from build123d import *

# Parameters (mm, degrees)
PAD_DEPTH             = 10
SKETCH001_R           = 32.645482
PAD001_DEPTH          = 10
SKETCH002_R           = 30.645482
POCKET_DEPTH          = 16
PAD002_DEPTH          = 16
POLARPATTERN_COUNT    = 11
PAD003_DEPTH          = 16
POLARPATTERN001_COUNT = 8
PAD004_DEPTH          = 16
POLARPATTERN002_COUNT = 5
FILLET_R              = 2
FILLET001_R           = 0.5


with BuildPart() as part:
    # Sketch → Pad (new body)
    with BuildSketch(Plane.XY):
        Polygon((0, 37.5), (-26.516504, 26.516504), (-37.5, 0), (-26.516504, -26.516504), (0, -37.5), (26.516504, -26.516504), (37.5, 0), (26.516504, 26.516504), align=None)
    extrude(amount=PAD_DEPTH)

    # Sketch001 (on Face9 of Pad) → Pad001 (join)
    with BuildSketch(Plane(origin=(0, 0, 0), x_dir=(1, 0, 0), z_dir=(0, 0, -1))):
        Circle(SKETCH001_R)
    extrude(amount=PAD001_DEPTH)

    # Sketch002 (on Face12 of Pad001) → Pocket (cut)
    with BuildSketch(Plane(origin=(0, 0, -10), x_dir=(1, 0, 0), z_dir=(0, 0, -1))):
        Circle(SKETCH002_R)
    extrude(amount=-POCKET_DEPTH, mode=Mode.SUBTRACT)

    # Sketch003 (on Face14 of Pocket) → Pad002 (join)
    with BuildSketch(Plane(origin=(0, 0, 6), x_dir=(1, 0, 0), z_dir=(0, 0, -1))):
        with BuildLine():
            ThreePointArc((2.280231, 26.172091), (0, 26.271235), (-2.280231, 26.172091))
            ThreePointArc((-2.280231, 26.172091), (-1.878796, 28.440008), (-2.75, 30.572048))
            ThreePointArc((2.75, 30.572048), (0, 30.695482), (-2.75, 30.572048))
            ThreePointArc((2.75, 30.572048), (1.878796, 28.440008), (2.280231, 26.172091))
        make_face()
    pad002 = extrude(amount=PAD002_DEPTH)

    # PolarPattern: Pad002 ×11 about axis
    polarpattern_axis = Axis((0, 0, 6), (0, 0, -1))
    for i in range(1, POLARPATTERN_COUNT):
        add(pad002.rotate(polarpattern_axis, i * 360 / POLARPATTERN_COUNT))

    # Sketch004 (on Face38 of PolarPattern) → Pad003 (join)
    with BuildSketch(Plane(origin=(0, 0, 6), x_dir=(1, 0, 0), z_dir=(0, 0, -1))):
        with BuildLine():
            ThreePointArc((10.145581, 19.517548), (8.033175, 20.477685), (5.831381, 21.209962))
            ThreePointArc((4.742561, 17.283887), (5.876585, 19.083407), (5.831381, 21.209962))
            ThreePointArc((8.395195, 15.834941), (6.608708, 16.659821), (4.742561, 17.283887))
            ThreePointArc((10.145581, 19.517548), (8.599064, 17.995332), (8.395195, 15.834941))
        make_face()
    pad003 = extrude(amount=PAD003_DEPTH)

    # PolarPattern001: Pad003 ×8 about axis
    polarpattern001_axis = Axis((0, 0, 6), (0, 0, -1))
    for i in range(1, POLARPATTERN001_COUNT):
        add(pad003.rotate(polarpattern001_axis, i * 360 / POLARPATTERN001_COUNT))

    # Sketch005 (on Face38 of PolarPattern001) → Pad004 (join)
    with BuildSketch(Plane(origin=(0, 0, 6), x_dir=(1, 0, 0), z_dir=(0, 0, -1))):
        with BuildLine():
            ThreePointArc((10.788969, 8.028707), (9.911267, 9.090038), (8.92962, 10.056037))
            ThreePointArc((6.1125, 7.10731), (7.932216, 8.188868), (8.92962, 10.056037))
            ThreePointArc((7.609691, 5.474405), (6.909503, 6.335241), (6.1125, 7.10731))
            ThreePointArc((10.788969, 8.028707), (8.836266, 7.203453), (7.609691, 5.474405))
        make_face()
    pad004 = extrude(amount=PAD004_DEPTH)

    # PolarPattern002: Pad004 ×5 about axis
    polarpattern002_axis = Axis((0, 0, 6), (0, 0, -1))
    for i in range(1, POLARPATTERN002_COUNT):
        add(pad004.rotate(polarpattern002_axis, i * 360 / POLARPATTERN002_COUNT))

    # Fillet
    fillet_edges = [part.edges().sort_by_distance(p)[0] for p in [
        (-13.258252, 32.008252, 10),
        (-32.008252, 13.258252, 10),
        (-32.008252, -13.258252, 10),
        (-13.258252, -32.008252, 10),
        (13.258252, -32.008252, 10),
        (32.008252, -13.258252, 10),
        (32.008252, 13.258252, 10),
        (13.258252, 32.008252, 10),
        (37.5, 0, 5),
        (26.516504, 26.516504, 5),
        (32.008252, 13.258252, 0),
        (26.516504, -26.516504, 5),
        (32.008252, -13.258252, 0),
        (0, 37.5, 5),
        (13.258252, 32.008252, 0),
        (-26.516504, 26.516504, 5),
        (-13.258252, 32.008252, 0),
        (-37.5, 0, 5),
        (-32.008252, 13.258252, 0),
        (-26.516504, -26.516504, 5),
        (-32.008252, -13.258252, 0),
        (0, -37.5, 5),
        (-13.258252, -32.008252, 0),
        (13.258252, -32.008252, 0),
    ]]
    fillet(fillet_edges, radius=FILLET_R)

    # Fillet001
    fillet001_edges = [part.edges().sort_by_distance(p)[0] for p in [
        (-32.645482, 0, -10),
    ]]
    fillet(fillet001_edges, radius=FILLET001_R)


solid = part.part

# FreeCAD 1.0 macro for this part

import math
import FreeCAD as App
import Part
import Sketcher
Q = App.Units.Quantity


def edges_at(feature, points):
    """Names of the edges that pass closest to the given points."""
    edges = feature.Shape.Edges
    near = lambda p: min(range(len(edges)), key=lambda i: edges[i].distToShape(Part.Vertex(*p))[0])
    return sorted({f"Edge{near(p) + 1}" for p in points})


def add_polygon(sketch, points):
    """Adds a closed chain of lines whose ends are joined by coincident constraints."""
    first, n = sketch.GeometryCount, len(points)
    for a, b in zip(points, points[1:] + points[:1]):
        sketch.addGeometry(Part.LineSegment(App.Vector(*a, 0), App.Vector(*b, 0)), False)
    for i in range(n):
        sketch.addConstraint(Sketcher.Constraint("Coincident", first + i, 2, first + (i + 1) % n, 1))

doc = App.newDocument("Part")
params = doc.addObject("Spreadsheet::Sheet", "Params")
for row, (alias, value) in enumerate([
    ("pad1_length", "10 mm"),
    ("pad2_length", "10 mm"),
    ("pocket1_length", "16 mm"),
    ("pad3_length", "16 mm"),
    ("sketch5_height", "21.209998 mm"),
    ("pad4_length", "16 mm"),
    ("pad5_length", "16 mm"),
    ("fillet_radius", "2 mm"),
    ("fillet2_radius", "0.5 mm"),
], start=1):
    params.set(f"A{row}", alias)
    params.set(f"B{row}", "=" + value)
    params.setAlias(f"B{row}", alias)

body = doc.addObject("PartDesign::Body", "Body")

sketch1 = body.newObject("Sketcher::SketchObject", "Sketch")
sketch1.AttachmentSupport = (doc.getObject("XY_Plane"), [""])
sketch1.MapMode = "FlatFace"
add_polygon(sketch1, [(0, 38), (-27, 27), (-38, 0), (-27, -27), (0, -38), (27, -27), (38, 0), (27, 27)])
sketch1.addConstraint([
    Sketcher.Constraint("Symmetric", 0, 2, 4, 2, -1, 1),
    Sketcher.Constraint("Symmetric", 1, 2, 5, 2, -1, 1),
    Sketcher.Constraint("Symmetric", 2, 2, 6, 2, -1, 1),
    Sketcher.Constraint("Symmetric", 3, 2, 7, 2, -1, 1),
    Sketcher.Constraint("Symmetric", 2, 2, 4, 2, -2),
    Sketcher.Constraint("PointOnObject", 1, 2, -1),
    Sketcher.Constraint("PointOnObject", 3, 2, -2),
    Sketcher.Constraint("Perpendicular", 0, 2),
    Sketcher.Constraint("Equal", 0, 1),
    Sketcher.Constraint("Angle", 0, Q("-157.499999 deg")),
    Sketcher.Constraint("DistanceX", 1, 2, 5, 2, 75.0),
])
pad1 = body.newObject("PartDesign::Pad", "Pad")
pad1.Profile = sketch1
pad1.setExpression("Length", "Params.pad1_length")

sketch2 = body.newObject("Sketcher::SketchObject", "Sketch001")
sketch2.AttachmentSupport = (doc.getObject("XY_Plane"), [""])
sketch2.MapMode = "FlatFace"
sketch2.addGeometry(Part.Circle(App.Vector(0, 0, 0), App.Vector(0, 0, 1), 33), False)
sketch2.addConstraint([
    Sketcher.Constraint("Coincident", 0, 3, -1, 1),
    Sketcher.Constraint("Diameter", 0, 65.290964),
])
pad2 = body.newObject("PartDesign::Pad", "Pad001")
pad2.Profile = sketch2
pad2.setExpression("Length", "Params.pad2_length")
pad2.Reversed = True

sketch3 = body.newObject("Sketcher::SketchObject", "Sketch002")
sketch3.AttachmentSupport = (doc.getObject("XY_Plane"), [""])
sketch3.MapMode = "FlatFace"
sketch3.AttachmentOffset = App.Placement(App.Vector(0, 0, -10), App.Rotation())
sketch3.addGeometry(Part.Circle(App.Vector(0, 0, 0), App.Vector(0, 0, 1), 31), False)
sketch3.addConstraint([
    Sketcher.Constraint("Coincident", 0, 3, -1, 1),
    Sketcher.Constraint("Diameter", 0, 61.290964),
])
pocket1 = body.newObject("PartDesign::Pocket", "Pocket")
pocket1.Profile = sketch3
pocket1.setExpression("Length", "Params.pocket1_length")
pocket1.Reversed = True

sketch4 = body.newObject("Sketcher::SketchObject", "Sketch003")
sketch4.AttachmentSupport = (doc.getObject("XY_Plane"), [""])
sketch4.MapMode = "FlatFace"
sketch4.AttachmentOffset = App.Placement(App.Vector(0, 0, 6), App.Rotation())
sketch4.addGeometry([
    Part.ArcOfCircle(Part.Circle(App.Vector(0, 0, 0), App.Vector(0, 0, 1), 26.3), math.radians(-94.98), math.radians(-85.02)),
    Part.ArcOfCircle(Part.Circle(App.Vector(6, -28, 0), App.Vector(0, 0, 1), 4.1), math.radians(154), math.radians(218)),
    Part.ArcOfCircle(Part.Circle(App.Vector(0, 0, 0), App.Vector(0, 0, 1), 30.7), math.radians(-95.14), math.radians(-84.86)),
    Part.ArcOfCircle(Part.Circle(App.Vector(-6, -28, 0), App.Vector(0, 0, 1), 4.1), math.radians(-38), math.radians(26)),
], False)
sketch4.addConstraint([
    Sketcher.Constraint("Coincident", 0, 2, 1, 1),
    Sketcher.Constraint("Coincident", 1, 2, 2, 2),
    Sketcher.Constraint("Coincident", 2, 1, 3, 1),
    Sketcher.Constraint("Coincident", 3, 2, 0, 1),
    Sketcher.Constraint("Equal", 1, 3),
    Sketcher.Constraint("Symmetric", 1, 3, 3, 3, -2),
    Sketcher.Constraint("PointOnObject", 0, 3, -2),
    Sketcher.Constraint("PointOnObject", 2, 3, -2),
    Sketcher.Constraint("DistanceX", -1, 1, 1, 3, 6.000002),
    Sketcher.Constraint("DistanceY", 1, 3, -1, 1, 28.0),
    Sketcher.Constraint("DistanceX", 2, 1, 1, 2, 5.5),
    Sketcher.Constraint("Radius", 1, 4.144628),
    Sketcher.Constraint("Radius", 0, 26.271297),
    Sketcher.Constraint("Radius", 2, 30.695497),
    Sketcher.Constraint("DistanceX", -1, 1, 0, 2, 2.280231),
])
pad3 = body.newObject("PartDesign::Pad", "Pad002")
pad3.Profile = sketch4
pad3.setExpression("Length", "Params.pad3_length")
pad3.Reversed = True
doc.recompute()

polarpattern = body.newObject("PartDesign::PolarPattern", "PolarPattern")
polarpattern.Originals = [pad3]
polarpattern.Axis = (doc.getObject("Z_Axis"), [""])
polarpattern.Angle = 360
polarpattern.Occurrences = 11
body.Tip = polarpattern

sketch5 = body.newObject("Sketcher::SketchObject", "Sketch004")
sketch5.AttachmentSupport = (doc.getObject("XY_Plane"), [""])
sketch5.MapMode = "FlatFace"
sketch5.AttachmentOffset = App.Placement(App.Vector(0, 0, 6), App.Rotation())
sketch5.addGeometry([
    Part.ArcOfCircle(Part.Circle(App.Vector(0, 0, 0), App.Vector(0, 0, 1), 22), math.radians(-74.63), math.radians(-62.53)),
    Part.ArcOfCircle(Part.Circle(App.Vector(2.3, -20.1, 0), App.Vector(0, 0, 1), 3.7), math.radians(-18), math.radians(49)),
    Part.ArcOfCircle(Part.Circle(App.Vector(0, 0, 0), App.Vector(0, 0, 1), 17.9), math.radians(-74.66), math.radians(-62.07)),
    Part.ArcOfCircle(Part.Circle(App.Vector(11.5, -16.6, 0), App.Vector(0, 0, 1), 3.2), math.radians(165), math.radians(245)),
], False)
sketch5.addConstraint([
    Sketcher.Constraint("Coincident", 0, 1, 1, 1),
    Sketcher.Constraint("Coincident", 1, 2, 2, 1),
    Sketcher.Constraint("Coincident", 2, 2, 3, 1),
    Sketcher.Constraint("Coincident", 3, 2, 0, 2),
    Sketcher.Constraint("Radius", 3, 3.167539),
    Sketcher.Constraint("DistanceY", 0, 1, 0, 3, 21.209998),
    Sketcher.Constraint("Radius", 0, 21.997027),
    Sketcher.Constraint("Radius", 1, 3.697105),
    Sketcher.Constraint("Radius", 2, 17.922685),
    Sketcher.Constraint("DistanceY", 3, 3, 2, 3, 16.6355),
    Sketcher.Constraint("DistanceX", 0, 3, 3, 3, 11.459899),
    Sketcher.Constraint("DistanceX", 0, 1, 3, 2, 4.3142),
    Sketcher.Constraint("DistanceY", 3, 3, -1, 1, 16.635551),
    Sketcher.Constraint("DistanceX", -1, 1, 0, 1, 5.831381),
    Sketcher.Constraint("DistanceX", -1, 1, 1, 2, 4.742561),
    Sketcher.Constraint("DistanceY", 2, 2, -1, 1, 15.834941),
])
sketch5.setExpression("Constraints[5]", "Params.sketch5_height")
pad4 = body.newObject("PartDesign::Pad", "Pad003")
pad4.Profile = sketch5
pad4.setExpression("Length", "Params.pad4_length")
pad4.Reversed = True
doc.recompute()

polarpattern2 = body.newObject("PartDesign::PolarPattern", "PolarPattern001")
polarpattern2.Originals = [pad4]
polarpattern2.Axis = (doc.getObject("Z_Axis"), [""])
polarpattern2.Angle = 360
polarpattern2.Occurrences = 8
body.Tip = polarpattern2

sketch6 = body.newObject("Sketcher::SketchObject", "Sketch005")
sketch6.AttachmentSupport = (doc.getObject("XY_Plane"), [""])
sketch6.MapMode = "FlatFace"
sketch6.AttachmentOffset = App.Placement(App.Vector(0, 0, 6), App.Rotation())
sketch6.addGeometry([
    Part.ArcOfCircle(Part.Circle(App.Vector(0, 0, 0), App.Vector(0, 0, 1), 13.4), math.radians(-48.4), math.radians(-36.66)),
    Part.ArcOfCircle(Part.Circle(App.Vector(5.1, -10.9, 0), App.Vector(0, 0, 1), 3.9), math.radians(13), math.radians(75)),
    Part.ArcOfCircle(Part.Circle(App.Vector(0, 0, 0), App.Vector(0, 0, 1), 9.4), math.radians(-49.3), math.radians(-35.73)),
    Part.ArcOfCircle(Part.Circle(App.Vector(11.3, -4.2, 0), App.Vector(0, 0, 1), 3.9), math.radians(-161), math.radians(-97)),
], False)
sketch6.addConstraint([
    Sketcher.Constraint("Coincident", 0, 1, 1, 1),
    Sketcher.Constraint("Coincident", 1, 2, 2, 1),
    Sketcher.Constraint("Coincident", 2, 2, 3, 1),
    Sketcher.Constraint("Coincident", 3, 2, 0, 2),
    Sketcher.Constraint("Coincident", 2, 3, -1, 1),
    Sketcher.Constraint("Radius", 0, 13.448398),
    Sketcher.Constraint("Radius", 2, 9.374241),
    Sketcher.Constraint("Radius", 3, 3.876372),
    Sketcher.Constraint("Radius", 1, 3.940258),
    Sketcher.Constraint("DistanceX", -1, 1, 1, 2, 6.1125),
    Sketcher.Constraint("DistanceY", 3, 3, 0, 3, 4.181501),
    Sketcher.Constraint("DistanceX", -1, 1, 1, 3, 5.08318),
    Sketcher.Constraint("DistanceX", -1, 1, 0, 1, 8.92962),
    Sketcher.Constraint("DistanceX", -1, 1, 2, 2, 7.609691),
    Sketcher.Constraint("DistanceX", -1, 1, 3, 2, 10.788969),
])
pad5 = body.newObject("PartDesign::Pad", "Pad004")
pad5.Profile = sketch6
pad5.setExpression("Length", "Params.pad5_length")
pad5.Reversed = True
doc.recompute()

polarpattern3 = body.newObject("PartDesign::PolarPattern", "PolarPattern002")
polarpattern3.Originals = [pad5]
polarpattern3.Axis = (doc.getObject("Z_Axis"), [""])
polarpattern3.Angle = 360
polarpattern3.Occurrences = 5
body.Tip = polarpattern3
doc.recompute()

fillet = body.newObject("PartDesign::Fillet", "Fillet")
fillet.Base = (polarpattern3, edges_at(polarpattern3, [
    (-13.258, 32.008, 10),
    (-32.008, 13.258, 10),
    (-32.008, -13.258, 10),
    (-13.258, -32.008, 10),
    (13.258, -32.008, 10),
    (32.008, -13.258, 10),
    (32.008, 13.258, 10),
    (13.258, 32.008, 10),
    (37.5, 0, 5),
    (26.517, 26.517, 5),
    (32.008, 13.258, 0),
    (26.517, -26.517, 5),
    (32.008, -13.258, 0),
    (0, 37.5, 5),
    (13.258, 32.008, 0),
    (-26.517, 26.517, 5),
    (-13.258, 32.008, 0),
    (-37.5, 0, 5),
    (-32.008, 13.258, 0),
    (-26.517, -26.517, 5),
    (-32.008, -13.258, 0),
    (0, -37.5, 5),
    (-13.258, -32.008, 0),
    (13.258, -32.008, 0),
]))
fillet.setExpression("Radius", "Params.fillet_radius")
doc.recompute()

fillet2 = body.newObject("PartDesign::Fillet", "Fillet001")
fillet2.Base = (fillet, edges_at(fillet, [(-32.645, 0, -10)]))
fillet2.setExpression("Radius", "Params.fillet2_radius")

doc.recompute()
